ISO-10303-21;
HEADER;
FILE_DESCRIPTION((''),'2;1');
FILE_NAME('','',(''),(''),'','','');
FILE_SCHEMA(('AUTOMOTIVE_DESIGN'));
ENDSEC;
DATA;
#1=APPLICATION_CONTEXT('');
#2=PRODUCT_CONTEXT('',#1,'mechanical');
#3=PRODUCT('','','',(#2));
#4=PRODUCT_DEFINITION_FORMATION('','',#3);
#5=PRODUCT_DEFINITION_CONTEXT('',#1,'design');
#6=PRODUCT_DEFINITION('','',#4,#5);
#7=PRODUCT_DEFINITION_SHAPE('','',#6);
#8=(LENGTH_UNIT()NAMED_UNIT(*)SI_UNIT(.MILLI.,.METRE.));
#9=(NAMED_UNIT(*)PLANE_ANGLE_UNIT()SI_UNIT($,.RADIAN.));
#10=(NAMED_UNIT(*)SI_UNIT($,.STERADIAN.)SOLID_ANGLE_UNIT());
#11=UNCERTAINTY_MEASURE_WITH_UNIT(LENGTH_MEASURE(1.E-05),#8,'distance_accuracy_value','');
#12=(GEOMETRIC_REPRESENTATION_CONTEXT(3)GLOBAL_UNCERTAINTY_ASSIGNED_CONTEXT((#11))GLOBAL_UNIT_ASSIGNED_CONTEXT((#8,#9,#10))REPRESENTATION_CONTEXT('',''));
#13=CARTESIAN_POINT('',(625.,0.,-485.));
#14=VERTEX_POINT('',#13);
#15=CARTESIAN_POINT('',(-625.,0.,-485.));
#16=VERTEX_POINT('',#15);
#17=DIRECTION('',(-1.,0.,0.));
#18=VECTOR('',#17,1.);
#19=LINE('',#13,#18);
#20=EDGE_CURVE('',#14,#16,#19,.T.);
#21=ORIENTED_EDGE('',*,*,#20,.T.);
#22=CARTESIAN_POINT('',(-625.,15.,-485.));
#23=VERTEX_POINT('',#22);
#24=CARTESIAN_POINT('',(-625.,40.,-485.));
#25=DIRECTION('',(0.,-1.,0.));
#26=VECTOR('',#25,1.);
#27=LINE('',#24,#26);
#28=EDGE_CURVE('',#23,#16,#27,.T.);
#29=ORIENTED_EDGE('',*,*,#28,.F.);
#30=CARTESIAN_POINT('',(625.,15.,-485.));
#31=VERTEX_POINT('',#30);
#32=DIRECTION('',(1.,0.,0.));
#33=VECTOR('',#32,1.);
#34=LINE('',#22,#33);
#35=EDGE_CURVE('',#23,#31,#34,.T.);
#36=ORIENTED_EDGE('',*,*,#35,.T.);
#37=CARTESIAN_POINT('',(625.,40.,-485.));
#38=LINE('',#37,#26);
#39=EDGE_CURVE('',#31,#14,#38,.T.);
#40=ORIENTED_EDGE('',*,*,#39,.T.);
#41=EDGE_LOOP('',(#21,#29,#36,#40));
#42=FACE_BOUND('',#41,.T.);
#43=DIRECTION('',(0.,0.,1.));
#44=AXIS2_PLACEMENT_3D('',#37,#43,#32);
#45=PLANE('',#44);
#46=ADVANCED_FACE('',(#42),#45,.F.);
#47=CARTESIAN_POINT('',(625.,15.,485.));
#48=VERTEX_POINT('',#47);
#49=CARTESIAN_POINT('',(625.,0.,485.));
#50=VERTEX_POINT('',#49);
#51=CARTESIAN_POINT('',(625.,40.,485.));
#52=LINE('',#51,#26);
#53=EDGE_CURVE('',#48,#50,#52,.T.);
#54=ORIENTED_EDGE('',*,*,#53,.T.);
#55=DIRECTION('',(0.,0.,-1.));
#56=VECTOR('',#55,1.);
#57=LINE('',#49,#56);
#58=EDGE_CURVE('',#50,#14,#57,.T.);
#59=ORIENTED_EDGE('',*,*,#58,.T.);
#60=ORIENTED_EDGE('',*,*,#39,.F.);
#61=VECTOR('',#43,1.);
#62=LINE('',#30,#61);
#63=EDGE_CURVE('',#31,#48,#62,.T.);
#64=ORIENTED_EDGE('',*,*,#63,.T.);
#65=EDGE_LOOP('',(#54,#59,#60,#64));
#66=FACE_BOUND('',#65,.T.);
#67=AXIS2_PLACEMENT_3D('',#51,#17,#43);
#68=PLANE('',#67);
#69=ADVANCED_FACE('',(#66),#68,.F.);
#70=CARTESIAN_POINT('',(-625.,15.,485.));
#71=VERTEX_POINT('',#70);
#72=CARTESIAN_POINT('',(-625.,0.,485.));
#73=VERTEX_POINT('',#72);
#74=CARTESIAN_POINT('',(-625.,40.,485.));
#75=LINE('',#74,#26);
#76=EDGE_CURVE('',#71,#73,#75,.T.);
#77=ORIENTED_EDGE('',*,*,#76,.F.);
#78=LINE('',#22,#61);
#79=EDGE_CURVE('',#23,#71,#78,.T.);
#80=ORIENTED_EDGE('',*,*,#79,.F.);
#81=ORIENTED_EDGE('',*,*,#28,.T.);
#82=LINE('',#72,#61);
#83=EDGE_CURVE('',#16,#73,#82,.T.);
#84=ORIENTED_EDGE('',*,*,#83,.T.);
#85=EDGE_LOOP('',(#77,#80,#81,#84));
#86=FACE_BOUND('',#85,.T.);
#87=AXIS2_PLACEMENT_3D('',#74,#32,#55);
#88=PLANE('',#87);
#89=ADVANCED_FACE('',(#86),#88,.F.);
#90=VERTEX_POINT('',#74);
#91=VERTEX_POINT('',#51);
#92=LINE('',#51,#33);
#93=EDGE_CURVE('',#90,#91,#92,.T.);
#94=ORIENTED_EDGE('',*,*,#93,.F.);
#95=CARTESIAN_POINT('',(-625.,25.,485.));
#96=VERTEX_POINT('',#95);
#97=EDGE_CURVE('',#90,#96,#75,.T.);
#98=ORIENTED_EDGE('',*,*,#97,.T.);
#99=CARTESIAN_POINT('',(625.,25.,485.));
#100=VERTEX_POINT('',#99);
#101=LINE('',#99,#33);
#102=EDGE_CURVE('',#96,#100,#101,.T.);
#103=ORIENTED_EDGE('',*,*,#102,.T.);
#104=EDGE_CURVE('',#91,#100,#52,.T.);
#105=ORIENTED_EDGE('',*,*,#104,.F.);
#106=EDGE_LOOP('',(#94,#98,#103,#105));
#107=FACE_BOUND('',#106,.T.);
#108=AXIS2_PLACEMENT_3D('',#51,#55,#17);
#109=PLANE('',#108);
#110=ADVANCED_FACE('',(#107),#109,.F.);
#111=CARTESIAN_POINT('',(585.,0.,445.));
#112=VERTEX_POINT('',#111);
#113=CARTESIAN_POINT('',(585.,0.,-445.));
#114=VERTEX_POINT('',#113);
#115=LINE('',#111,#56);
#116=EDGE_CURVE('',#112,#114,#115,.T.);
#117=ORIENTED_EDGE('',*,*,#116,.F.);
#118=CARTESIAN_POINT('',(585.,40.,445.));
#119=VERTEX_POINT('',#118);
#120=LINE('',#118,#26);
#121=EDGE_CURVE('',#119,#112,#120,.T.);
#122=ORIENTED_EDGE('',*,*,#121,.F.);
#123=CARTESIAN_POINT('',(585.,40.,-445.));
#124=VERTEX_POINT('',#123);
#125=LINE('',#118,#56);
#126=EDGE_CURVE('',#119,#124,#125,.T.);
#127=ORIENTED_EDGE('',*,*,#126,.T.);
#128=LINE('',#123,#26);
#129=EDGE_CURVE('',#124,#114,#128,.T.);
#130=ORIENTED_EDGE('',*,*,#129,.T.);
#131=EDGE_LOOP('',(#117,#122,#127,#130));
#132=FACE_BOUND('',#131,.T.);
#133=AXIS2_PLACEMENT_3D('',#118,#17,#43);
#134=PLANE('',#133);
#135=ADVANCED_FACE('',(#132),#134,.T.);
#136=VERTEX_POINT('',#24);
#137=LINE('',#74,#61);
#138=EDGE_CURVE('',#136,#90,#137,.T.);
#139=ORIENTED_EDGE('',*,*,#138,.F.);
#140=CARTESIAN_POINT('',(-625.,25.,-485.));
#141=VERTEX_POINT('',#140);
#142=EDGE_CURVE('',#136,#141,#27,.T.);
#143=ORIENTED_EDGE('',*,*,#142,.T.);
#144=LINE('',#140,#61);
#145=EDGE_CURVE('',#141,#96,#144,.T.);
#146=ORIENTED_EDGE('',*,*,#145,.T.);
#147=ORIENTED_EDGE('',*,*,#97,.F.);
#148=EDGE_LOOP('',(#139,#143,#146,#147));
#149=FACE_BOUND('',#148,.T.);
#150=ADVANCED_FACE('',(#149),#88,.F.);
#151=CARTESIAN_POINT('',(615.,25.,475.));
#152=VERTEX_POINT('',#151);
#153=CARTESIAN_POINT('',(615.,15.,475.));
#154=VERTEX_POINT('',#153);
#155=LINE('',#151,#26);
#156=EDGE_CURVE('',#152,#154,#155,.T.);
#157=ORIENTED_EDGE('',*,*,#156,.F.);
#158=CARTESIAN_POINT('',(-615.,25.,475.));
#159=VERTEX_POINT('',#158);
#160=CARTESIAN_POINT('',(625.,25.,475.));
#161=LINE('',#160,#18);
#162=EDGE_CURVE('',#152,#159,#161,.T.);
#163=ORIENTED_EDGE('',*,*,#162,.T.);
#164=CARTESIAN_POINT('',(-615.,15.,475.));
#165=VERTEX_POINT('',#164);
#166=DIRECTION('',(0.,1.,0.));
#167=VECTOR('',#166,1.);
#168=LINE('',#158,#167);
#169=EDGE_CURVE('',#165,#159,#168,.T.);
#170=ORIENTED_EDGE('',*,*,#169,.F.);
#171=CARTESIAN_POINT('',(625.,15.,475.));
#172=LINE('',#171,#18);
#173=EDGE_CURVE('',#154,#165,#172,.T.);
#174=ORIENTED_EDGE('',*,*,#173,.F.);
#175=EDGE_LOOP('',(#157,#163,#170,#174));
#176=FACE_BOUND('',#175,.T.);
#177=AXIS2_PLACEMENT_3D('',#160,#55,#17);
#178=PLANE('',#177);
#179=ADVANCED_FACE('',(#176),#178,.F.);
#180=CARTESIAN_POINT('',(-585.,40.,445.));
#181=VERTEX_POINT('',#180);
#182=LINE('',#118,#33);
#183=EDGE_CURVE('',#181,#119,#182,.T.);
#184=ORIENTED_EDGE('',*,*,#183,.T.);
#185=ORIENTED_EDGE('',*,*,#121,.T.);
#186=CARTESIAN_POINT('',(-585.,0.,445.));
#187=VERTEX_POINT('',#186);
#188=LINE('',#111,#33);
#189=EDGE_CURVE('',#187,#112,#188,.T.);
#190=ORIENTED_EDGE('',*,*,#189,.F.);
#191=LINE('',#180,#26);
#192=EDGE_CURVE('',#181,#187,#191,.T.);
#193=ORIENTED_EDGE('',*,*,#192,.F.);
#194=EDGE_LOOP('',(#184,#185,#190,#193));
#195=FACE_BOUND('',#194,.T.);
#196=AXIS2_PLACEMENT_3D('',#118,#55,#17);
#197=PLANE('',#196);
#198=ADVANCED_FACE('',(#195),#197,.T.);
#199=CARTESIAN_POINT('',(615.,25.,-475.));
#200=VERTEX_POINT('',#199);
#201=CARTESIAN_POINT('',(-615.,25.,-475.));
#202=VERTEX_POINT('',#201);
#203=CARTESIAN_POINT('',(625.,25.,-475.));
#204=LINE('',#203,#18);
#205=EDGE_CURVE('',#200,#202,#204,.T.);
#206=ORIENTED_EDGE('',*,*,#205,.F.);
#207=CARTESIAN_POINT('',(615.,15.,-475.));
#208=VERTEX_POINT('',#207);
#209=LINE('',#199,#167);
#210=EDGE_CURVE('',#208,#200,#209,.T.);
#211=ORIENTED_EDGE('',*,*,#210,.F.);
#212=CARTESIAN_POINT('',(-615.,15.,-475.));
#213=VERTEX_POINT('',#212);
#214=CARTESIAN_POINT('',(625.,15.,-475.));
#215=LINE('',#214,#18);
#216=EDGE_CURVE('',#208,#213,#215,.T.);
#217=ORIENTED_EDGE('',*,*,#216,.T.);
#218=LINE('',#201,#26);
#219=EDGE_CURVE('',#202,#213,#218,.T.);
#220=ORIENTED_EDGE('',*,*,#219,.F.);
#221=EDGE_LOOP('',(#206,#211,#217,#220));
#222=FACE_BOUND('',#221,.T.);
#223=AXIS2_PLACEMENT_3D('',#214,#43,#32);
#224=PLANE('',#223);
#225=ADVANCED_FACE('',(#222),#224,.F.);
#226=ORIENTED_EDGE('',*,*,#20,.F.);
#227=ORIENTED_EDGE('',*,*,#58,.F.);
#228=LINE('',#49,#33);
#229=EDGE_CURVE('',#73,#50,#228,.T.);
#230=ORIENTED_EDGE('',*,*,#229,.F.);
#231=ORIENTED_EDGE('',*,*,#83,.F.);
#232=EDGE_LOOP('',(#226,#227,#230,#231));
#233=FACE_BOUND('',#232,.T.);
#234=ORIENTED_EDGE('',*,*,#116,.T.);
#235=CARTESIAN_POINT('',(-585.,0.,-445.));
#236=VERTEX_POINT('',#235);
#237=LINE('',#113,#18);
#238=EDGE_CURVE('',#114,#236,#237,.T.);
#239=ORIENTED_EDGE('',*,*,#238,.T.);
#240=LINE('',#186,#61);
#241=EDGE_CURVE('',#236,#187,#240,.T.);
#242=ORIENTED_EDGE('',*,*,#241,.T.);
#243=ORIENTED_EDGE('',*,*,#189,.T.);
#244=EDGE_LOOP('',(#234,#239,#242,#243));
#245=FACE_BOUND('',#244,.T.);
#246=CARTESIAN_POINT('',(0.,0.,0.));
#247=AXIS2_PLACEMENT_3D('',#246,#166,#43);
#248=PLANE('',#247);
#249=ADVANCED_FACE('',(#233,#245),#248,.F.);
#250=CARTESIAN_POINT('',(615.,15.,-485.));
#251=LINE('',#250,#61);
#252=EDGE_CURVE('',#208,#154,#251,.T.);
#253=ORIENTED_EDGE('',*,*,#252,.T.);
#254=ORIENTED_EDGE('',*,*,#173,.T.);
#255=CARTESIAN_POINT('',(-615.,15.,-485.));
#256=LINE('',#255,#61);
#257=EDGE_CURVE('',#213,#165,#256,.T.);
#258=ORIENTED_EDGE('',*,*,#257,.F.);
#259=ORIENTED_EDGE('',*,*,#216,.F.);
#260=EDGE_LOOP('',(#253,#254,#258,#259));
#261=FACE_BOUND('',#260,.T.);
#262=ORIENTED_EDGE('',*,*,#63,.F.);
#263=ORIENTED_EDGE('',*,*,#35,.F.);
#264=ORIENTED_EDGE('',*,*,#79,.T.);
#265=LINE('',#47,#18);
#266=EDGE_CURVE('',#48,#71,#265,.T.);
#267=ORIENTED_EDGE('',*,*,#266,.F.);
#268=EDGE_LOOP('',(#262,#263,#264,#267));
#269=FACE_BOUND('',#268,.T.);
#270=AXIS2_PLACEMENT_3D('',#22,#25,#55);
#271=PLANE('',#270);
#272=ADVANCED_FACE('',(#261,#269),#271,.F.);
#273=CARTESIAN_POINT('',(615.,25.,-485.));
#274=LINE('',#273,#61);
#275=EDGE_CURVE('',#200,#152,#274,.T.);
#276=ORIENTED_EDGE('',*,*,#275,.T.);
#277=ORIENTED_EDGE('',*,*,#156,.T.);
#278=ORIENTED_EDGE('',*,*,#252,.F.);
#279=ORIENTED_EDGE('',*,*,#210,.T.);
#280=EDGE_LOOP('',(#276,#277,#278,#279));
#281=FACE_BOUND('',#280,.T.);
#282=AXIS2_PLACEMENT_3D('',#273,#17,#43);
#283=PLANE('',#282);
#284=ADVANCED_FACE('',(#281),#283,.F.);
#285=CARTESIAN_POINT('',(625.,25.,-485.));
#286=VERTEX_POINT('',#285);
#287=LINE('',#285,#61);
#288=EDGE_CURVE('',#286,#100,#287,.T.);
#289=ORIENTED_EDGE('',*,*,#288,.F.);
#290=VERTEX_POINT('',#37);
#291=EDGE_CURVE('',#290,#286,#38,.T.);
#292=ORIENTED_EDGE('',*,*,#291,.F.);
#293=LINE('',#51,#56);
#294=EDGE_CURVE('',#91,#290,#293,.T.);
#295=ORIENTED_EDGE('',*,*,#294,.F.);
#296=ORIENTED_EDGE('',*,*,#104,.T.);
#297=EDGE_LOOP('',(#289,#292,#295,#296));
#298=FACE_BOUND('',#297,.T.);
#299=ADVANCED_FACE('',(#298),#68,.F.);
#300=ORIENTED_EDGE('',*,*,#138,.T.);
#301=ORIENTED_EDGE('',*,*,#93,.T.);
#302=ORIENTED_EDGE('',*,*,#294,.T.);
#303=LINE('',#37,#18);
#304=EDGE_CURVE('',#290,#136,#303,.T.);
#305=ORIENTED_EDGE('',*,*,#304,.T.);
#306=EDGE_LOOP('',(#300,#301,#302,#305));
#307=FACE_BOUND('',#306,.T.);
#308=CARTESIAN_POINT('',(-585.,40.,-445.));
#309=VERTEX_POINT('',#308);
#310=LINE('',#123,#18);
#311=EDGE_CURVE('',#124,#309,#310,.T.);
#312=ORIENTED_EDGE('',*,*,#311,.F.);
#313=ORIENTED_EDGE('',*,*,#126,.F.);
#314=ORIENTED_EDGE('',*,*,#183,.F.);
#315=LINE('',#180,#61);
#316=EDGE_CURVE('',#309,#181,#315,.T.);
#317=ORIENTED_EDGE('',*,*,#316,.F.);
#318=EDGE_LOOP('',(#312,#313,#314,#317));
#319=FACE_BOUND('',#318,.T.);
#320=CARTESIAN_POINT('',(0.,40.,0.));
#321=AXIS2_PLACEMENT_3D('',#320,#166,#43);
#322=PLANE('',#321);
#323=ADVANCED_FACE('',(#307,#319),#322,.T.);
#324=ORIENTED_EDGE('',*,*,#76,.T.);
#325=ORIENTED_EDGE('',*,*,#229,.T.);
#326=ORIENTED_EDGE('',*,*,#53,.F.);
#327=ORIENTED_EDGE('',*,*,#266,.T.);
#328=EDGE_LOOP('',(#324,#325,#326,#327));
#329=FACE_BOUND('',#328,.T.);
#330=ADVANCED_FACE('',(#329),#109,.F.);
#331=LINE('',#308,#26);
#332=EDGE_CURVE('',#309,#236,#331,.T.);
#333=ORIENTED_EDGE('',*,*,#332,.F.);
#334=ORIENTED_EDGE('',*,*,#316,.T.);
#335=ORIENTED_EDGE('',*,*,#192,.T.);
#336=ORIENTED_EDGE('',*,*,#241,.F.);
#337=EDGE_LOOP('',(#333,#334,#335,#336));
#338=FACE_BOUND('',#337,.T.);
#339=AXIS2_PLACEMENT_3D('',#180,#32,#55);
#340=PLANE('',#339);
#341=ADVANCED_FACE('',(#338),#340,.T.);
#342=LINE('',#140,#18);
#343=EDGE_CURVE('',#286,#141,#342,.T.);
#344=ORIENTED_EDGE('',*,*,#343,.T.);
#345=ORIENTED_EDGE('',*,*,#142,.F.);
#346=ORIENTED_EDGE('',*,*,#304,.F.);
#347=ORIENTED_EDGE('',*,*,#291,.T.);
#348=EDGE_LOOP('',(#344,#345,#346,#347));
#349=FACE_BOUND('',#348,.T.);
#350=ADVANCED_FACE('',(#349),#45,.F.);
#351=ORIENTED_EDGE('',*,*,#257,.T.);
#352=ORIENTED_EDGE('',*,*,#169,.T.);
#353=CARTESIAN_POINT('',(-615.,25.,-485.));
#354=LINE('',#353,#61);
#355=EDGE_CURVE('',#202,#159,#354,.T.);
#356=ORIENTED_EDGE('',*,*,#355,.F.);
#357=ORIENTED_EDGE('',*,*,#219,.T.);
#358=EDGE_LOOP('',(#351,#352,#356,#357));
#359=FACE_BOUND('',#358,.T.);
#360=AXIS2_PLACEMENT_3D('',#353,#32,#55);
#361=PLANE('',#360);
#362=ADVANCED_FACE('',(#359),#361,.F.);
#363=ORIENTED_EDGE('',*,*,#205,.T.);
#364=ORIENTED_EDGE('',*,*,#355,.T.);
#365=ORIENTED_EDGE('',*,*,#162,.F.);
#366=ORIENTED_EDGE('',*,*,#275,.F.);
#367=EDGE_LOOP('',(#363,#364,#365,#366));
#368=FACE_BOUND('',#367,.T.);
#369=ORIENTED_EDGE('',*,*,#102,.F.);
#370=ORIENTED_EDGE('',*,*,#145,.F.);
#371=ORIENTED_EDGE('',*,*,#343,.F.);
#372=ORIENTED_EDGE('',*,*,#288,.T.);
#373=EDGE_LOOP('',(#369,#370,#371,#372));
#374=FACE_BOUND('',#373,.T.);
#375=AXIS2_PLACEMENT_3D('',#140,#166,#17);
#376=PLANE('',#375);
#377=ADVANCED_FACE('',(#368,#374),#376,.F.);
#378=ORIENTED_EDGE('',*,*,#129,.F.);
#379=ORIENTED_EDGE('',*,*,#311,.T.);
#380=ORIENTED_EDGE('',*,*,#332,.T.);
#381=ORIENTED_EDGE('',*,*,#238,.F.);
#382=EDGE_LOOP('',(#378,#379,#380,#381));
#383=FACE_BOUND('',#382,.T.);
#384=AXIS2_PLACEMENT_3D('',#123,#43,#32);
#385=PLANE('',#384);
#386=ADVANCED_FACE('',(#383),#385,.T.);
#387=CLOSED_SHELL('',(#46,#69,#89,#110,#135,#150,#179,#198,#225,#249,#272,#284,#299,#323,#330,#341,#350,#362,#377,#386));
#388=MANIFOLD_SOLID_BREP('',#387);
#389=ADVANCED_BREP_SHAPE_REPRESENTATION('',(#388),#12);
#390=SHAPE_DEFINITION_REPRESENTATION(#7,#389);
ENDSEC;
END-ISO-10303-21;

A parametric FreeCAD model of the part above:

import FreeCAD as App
import Part
import Sketcher
from FreeCAD import Vector


def add_polygon(sketch, points):
    """Adds a closed chain of lines whose ends are joined by coincident constraints."""
    first, n = sketch.GeometryCount, len(points)
    for a, b in zip(points, points[1:] + points[:1]):
        sketch.addGeometry(Part.LineSegment(App.Vector(*a, 0), App.Vector(*b, 0)), False)
    for i in range(n):
        sketch.addConstraint(Sketcher.Constraint("Coincident", first + i, 2, first + (i + 1) % n, 1))

doc = App.newDocument("Part")
params = doc.addObject("Spreadsheet::Sheet", "Params")
for row, (alias, value) in enumerate([
    ("sketch1_width", "1250 mm"),
    ("sketch1_width2", "1170 mm"),
    ("sketch1_height", "970 mm"),
    ("sketch1_height2", "890 mm"),
    ("pad1_length", "40 mm"),
    ("sketch2_width", "10 mm"),
    ("sketch3_width", "10 mm"),
], start=1):
    params.set(f"A{row}", alias)
    params.set(f"B{row}", "=" + value)
    params.setAlias(f"B{row}", alias)

body = doc.addObject("PartDesign::Body", "Body")

sketch1 = doc.addObject("Sketcher::SketchObject", "Sketch")
body.addObject(sketch1)
sketch1.AttachmentSupport = (doc.XZ_Plane, [""])
sketch1.MapMode = "FlatFace"
add_polygon(sketch1, [(-625, -485), (-625, 485), (625, 485), (625, -485)])
add_polygon(sketch1, [(585, 445), (-585, 445), (-585, -445), (585, -445)])
sketch1.addConstraint([
    Sketcher.Constraint("Vertical", 0),
    Sketcher.Constraint("Horizontal", 1),
    Sketcher.Constraint("Vertical", 2),
    Sketcher.Constraint("Horizontal", 3),
    Sketcher.Constraint("Horizontal", 4),
    Sketcher.Constraint("Vertical", 5),
    Sketcher.Constraint("Horizontal", 6),
    Sketcher.Constraint("Vertical", 7),
    Sketcher.Constraint("Symmetric", 0, 2, 2, 2, -1, 1),
    Sketcher.Constraint("Symmetric", 4, 2, 6, 2, -1, 1),
    Sketcher.Constraint("DistanceX", 1, 1, 1, 2, 1250.0),
    Sketcher.Constraint("DistanceX", 4, 2, 4, 1, 1170.0),
    Sketcher.Constraint("DistanceY", 0, 1, 0, 2, 970.0),
    Sketcher.Constraint("DistanceY", 5, 2, 5, 1, 890.0),
])
sketch1.setExpression("Constraints[18]", "Params.sketch1_width")
sketch1.setExpression("Constraints[19]", "Params.sketch1_width2")
sketch1.setExpression("Constraints[20]", "Params.sketch1_height")
sketch1.setExpression("Constraints[21]", "Params.sketch1_height2")
pad1 = doc.addObject("PartDesign::Pad", "Pad")
body.addObject(pad1)
pad1.Profile = sketch1
pad1.setExpression("Length", "Params.pad1_length")
pad1.Reversed = True

sketch2 = doc.addObject("Sketcher::SketchObject", "Sketch001")
body.addObject(sketch2)
sketch2.AttachmentSupport = (doc.XY_Plane, [""])
sketch2.MapMode = "FlatFace"
sketch2.AttachmentOffset = App.Placement(Vector(0, 0, 485), App.Rotation())
add_polygon(sketch2, [(-625, 25), (-625, 15), (-615, 15), (-615, 25)])
add_polygon(sketch2, [(615, 25), (615, 15), (625, 15), (625, 25)])
sketch2.addConstraint([
    Sketcher.Constraint("Vertical", 0),
    Sketcher.Constraint("Horizontal", 1),
    Sketcher.Constraint("Vertical", 2),
    Sketcher.Constraint("Horizontal", 3),
    Sketcher.Constraint("Vertical", 4),
    Sketcher.Constraint("Horizontal", 5),
    Sketcher.Constraint("Vertical", 6),
    Sketcher.Constraint("Horizontal", 7),
    Sketcher.Constraint("Symmetric", 1, 2, 4, 2, -2),
    Sketcher.Constraint("Symmetric", 3, 2, 6, 2, -2),
    Sketcher.Constraint("Equal", 7, 0),
    Sketcher.Constraint("DistanceX", 1, 1, 1, 2, 10.0),
    Sketcher.Constraint("DistanceX", 0, 2, -1, 1, 625.0),
    Sketcher.Constraint("DistanceY", -1, 1, 0, 2, 15.0),
])
sketch2.setExpression("Constraints[19]", "Params.sketch2_width")
pocket1 = doc.addObject("PartDesign::Pocket", "Pocket")
body.addObject(pocket1)
pocket1.Profile = sketch2
pocket1.Type = "ThroughAll"
pocket1.Midplane = True

sketch3 = doc.addObject("Sketcher::SketchObject", "Sketch002")
body.addObject(sketch3)
sketch3.AttachmentSupport = (doc.YZ_Plane, [""])
sketch3.MapMode = "FlatFace"
sketch3.AttachmentOffset = App.Placement(Vector(0, 0, -625), App.Rotation())
add_polygon(sketch3, [(25, 475), (15, 475), (15, 485), (25, 485)])
add_polygon(sketch3, [(25, -485), (15, -485), (15, -475), (25, -475)])
sketch3.addConstraint([
    Sketcher.Constraint("Horizontal", 0),
    Sketcher.Constraint("Vertical", 1),
    Sketcher.Constraint("Horizontal", 2),
    Sketcher.Constraint("Vertical", 3),
    Sketcher.Constraint("Horizontal", 4),
    Sketcher.Constraint("Vertical", 5),
    Sketcher.Constraint("Horizontal", 6),
    Sketcher.Constraint("Vertical", 7),
    Sketcher.Constraint("Symmetric", 1, 2, 4, 2, -1),
    Sketcher.Constraint("Symmetric", 3, 2, 6, 2, -1),
    Sketcher.Constraint("Equal", 6, 1),
    Sketcher.Constraint("DistanceX", 0, 2, 0, 1, 10.0),
    Sketcher.Constraint("DistanceX", -1, 1, 0, 2, 15.0),
    Sketcher.Constraint("DistanceY", -1, 1, 0, 2, 475.0),
])
sketch3.setExpression("Constraints[19]", "Params.sketch3_width")
pocket2 = doc.addObject("PartDesign::Pocket", "Pocket001")
body.addObject(pocket2)
pocket2.Profile = sketch3
pocket2.Type = "ThroughAll"
pocket2.Midplane = True

doc.recompute()
